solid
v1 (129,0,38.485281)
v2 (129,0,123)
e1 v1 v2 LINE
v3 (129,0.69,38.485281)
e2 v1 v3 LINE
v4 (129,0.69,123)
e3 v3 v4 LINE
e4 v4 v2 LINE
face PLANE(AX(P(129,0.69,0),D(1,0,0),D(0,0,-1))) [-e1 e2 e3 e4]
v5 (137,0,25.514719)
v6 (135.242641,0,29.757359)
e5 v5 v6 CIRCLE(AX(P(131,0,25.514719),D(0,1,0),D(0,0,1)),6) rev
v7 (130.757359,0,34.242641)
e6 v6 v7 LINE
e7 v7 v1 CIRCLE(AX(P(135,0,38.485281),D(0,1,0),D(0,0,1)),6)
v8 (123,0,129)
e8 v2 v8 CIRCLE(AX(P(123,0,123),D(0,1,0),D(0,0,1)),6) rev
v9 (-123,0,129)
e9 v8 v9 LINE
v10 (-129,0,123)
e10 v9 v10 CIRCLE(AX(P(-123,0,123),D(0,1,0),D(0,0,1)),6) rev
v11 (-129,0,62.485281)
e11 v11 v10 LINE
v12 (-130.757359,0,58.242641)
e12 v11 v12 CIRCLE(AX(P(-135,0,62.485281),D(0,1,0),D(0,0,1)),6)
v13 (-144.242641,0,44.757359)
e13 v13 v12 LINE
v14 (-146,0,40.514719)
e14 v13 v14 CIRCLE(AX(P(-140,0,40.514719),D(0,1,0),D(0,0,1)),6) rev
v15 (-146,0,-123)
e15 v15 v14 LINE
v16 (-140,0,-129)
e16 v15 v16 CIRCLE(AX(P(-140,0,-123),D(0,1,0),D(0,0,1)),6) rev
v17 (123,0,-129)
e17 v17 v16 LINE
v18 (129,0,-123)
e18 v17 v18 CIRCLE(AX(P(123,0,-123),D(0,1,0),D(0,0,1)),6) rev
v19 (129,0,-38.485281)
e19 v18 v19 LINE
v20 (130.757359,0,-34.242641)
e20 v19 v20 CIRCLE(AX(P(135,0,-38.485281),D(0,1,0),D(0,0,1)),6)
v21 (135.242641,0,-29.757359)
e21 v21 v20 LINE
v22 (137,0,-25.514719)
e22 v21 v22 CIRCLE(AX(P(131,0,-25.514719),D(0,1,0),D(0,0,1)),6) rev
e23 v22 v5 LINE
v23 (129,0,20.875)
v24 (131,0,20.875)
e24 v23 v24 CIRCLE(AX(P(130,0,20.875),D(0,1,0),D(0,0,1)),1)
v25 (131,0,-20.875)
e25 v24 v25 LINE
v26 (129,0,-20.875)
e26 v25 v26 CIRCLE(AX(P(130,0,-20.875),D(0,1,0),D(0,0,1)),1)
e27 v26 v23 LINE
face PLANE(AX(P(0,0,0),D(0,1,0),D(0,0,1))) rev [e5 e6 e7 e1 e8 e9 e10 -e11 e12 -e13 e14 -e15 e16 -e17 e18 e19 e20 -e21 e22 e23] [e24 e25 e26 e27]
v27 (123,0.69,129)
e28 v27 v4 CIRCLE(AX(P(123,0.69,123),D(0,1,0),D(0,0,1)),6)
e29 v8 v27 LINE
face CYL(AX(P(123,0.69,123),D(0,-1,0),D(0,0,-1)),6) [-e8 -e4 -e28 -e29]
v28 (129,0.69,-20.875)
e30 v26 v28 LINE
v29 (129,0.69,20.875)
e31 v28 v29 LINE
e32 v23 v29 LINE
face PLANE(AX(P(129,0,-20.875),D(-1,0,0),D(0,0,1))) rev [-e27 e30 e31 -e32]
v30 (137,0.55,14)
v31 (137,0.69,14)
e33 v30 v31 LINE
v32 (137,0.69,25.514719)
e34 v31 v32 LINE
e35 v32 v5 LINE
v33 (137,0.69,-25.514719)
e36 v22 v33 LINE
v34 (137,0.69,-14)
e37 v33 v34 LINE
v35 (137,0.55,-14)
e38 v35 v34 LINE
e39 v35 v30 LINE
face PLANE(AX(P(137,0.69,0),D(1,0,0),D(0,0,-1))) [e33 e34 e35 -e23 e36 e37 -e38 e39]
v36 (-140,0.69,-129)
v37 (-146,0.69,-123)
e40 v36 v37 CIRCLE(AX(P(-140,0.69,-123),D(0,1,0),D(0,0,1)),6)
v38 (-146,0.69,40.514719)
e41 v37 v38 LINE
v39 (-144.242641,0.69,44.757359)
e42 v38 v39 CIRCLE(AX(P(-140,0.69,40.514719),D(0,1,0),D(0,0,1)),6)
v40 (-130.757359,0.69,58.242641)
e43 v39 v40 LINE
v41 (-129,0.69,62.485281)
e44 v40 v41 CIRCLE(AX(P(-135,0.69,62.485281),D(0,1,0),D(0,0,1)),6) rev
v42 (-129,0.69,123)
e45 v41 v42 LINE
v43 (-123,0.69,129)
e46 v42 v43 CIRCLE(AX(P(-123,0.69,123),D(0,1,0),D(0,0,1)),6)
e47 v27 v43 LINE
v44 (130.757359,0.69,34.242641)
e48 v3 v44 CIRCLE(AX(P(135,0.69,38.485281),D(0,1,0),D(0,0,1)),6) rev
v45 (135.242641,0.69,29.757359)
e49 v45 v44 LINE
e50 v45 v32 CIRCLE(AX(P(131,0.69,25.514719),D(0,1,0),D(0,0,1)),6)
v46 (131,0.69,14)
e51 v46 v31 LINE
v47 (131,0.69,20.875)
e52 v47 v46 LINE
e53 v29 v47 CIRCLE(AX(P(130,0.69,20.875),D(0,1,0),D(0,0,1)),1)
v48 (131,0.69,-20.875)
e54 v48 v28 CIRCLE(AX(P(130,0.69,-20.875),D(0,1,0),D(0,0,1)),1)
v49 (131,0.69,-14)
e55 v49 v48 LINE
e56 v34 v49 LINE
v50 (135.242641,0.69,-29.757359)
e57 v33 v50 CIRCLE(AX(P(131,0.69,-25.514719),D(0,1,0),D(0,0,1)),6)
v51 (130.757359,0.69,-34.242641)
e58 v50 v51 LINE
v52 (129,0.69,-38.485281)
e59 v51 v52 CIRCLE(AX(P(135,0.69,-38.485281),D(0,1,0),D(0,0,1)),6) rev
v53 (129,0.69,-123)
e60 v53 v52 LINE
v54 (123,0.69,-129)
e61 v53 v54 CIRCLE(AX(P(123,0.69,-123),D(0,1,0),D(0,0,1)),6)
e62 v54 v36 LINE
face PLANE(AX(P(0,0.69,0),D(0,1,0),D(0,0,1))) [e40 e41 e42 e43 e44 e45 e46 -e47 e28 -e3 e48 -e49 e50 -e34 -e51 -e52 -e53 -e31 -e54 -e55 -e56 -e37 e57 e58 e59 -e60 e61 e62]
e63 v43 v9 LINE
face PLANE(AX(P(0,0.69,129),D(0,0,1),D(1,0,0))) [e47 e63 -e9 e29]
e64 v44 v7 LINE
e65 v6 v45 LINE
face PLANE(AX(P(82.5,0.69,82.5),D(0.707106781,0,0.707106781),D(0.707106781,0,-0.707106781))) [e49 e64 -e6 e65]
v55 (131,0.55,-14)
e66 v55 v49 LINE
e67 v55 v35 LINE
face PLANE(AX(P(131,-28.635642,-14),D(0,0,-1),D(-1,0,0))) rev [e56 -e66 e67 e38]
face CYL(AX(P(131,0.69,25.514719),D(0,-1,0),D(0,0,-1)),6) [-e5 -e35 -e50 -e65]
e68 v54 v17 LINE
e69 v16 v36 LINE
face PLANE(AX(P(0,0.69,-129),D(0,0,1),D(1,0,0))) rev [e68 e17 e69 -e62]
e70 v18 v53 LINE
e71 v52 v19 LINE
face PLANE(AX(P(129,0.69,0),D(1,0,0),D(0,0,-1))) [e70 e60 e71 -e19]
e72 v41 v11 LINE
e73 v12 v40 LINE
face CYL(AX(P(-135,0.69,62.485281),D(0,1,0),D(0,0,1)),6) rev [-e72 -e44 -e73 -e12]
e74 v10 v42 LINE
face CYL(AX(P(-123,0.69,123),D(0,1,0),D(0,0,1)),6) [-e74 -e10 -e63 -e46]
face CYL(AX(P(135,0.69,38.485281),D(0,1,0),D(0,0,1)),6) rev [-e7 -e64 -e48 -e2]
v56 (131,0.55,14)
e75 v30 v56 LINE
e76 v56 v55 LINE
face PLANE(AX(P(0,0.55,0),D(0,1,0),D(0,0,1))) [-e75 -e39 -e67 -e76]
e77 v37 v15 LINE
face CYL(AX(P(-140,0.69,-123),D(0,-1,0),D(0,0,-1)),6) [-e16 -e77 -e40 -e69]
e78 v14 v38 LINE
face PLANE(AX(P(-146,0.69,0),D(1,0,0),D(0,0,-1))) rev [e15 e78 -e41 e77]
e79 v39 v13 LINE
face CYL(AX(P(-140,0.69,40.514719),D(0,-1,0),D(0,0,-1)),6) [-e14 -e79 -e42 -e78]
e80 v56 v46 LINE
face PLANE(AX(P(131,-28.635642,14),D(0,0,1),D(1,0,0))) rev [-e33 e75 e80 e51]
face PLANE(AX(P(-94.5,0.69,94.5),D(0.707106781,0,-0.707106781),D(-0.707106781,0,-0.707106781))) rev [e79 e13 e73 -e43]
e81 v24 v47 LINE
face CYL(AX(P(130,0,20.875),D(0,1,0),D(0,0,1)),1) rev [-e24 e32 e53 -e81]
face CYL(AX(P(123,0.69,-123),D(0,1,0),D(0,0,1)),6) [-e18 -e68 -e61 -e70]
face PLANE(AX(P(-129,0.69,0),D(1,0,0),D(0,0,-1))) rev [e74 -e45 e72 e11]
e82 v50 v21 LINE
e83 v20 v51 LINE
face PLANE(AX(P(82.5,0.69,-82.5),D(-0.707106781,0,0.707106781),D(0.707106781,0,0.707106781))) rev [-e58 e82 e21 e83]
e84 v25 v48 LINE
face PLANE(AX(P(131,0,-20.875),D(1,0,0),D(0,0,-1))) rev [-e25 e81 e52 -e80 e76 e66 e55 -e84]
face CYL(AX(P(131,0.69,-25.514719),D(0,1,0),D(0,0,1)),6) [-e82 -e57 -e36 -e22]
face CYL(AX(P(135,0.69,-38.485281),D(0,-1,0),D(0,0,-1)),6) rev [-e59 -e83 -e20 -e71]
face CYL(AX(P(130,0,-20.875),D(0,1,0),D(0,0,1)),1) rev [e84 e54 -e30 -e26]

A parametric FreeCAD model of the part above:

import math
import FreeCAD as App
import Part
import Sketcher


def edges_at(feature, points):
    """Names of the edges that pass closest to the given points."""
    edges = feature.Shape.Edges
    near = lambda p: min(range(len(edges)), key=lambda i: edges[i].distToShape(Part.Vertex(*p))[0])
    return sorted({f"Edge{near(p) + 1}" for p in points})


def add_polygon(sketch, points):
    """Adds a closed chain of lines whose ends are joined by coincident constraints."""
    first, n = sketch.GeometryCount, len(points)
    for a, b in zip(points, points[1:] + points[:1]):
        sketch.addGeometry(Part.LineSegment(App.Vector(*a, 0), App.Vector(*b, 0)), False)
    for i in range(n):
        sketch.addConstraint(Sketcher.Constraint("Coincident", first + i, 2, first + (i + 1) % n, 1))

doc = App.newDocument("Part")
params = doc.addObject("Spreadsheet::Sheet", "Params")
for row, (alias, value) in enumerate([
    ("sketch1_width", "258 mm"),
    ("sketch1_width2", "275 mm"),
    ("sketch1_height", "172 mm"),
    ("sketch1_height2", "69 mm"),
    ("sketch1_height3", "93 mm"),
    ("pad1_length", "0.69 mm"),
    ("sketch2_radius", "1 mm"),
    ("sketch2_height", "41.75 mm"),
    ("sketch3_width", "6 mm"),
    ("sketch3_height", "28 mm"),
    ("pocket2_length", "0.14 mm"),
    ("fillet_radius", "6 mm"),
], start=1):
    params.set(f"A{row}", alias)
    params.set(f"B{row}", "=" + value)
    params.setAlias(f"B{row}", alias)

body = doc.addObject("PartDesign::Body", "Body")

sketch1 = body.newObject("Sketcher::SketchObject", "Sketch")
sketch1.AttachmentSupport = (doc.getObject("XZ_Plane"), [""])
sketch1.MapMode = "FlatFace"
add_polygon(sketch1, [(-146, -129), (-146, 43), (-129, 60), (-129, 129), (129, 129), (129, 36), (137, 28), (137, -28), (129, -36), (129, -129)])
sketch1.addConstraint([
    Sketcher.Constraint("Vertical", 0),
    Sketcher.Constraint("Vertical", 2),
    Sketcher.Constraint("Horizontal", 3),
    Sketcher.Constraint("Vertical", 4),
    Sketcher.Constraint("Vertical", 6),
    Sketcher.Constraint("Vertical", 8),
    Sketcher.Constraint("Horizontal", 9),
    Sketcher.Constraint("Symmetric", 2, 2, 8, 2, -1, 1),
    Sketcher.Constraint("Symmetric", 4, 2, 7, 2, -1),
    Sketcher.Constraint("Perpendicular", 1, 5),
    Sketcher.Constraint("Perpendicular", 5, 7),
    Sketcher.Constraint("Equal", 5, 7),
    Sketcher.Constraint("DistanceX", 3, 1, 3, 2, 258.0),
    Sketcher.Constraint("DistanceX", 9, 2, 9, 1, 275.0),
    Sketcher.Constraint("DistanceY", 0, 1, 0, 2, 172.0),
    Sketcher.Constraint("DistanceY", 2, 1, 2, 2, 69.0),
    Sketcher.Constraint("DistanceY", 4, 2, 4, 1, 93.0),
    Sketcher.Constraint("DistanceY", 6, 2, 6, 1, 56.0),
])
sketch1.setExpression("Constraints[22]", "Params.sketch1_width")
sketch1.setExpression("Constraints[23]", "Params.sketch1_width2")
sketch1.setExpression("Constraints[24]", "Params.sketch1_height")
sketch1.setExpression("Constraints[25]", "Params.sketch1_height2")
sketch1.setExpression("Constraints[26]", "Params.sketch1_height3")
pad1 = body.newObject("PartDesign::Pad", "Pad")
pad1.Profile = sketch1
pad1.setExpression("Length", "Params.pad1_length")
pad1.Reversed = True

sketch2 = body.newObject("Sketcher::SketchObject", "Sketch001")
sketch2.AttachmentSupport = (doc.getObject("XZ_Plane"), [""])
sketch2.MapMode = "FlatFace"
sketch2.AttachmentOffset = App.Placement(App.Vector(0, 0, -0.69), App.Rotation())
sketch2.addGeometry([
    Part.LineSegment(App.Vector(131, 20.9, 0), App.Vector(131, -20.9, 0)),
    Part.ArcOfCircle(Part.Circle(App.Vector(130, -20.9, 0), App.Vector(0, 0, 1), 1), math.radians(180), math.radians(360)),
    Part.LineSegment(App.Vector(129, -20.9, 0), App.Vector(129, 20.9, 0)),
    Part.ArcOfCircle(Part.Circle(App.Vector(130, 20.9, 0), App.Vector(0, 0, 1), 1), math.radians(0), math.radians(180)),
], False)
sketch2.addConstraint([
    Sketcher.Constraint("Tangent", 0, 2, 1, 2),
    Sketcher.Constraint("Tangent", 1, 1, 2, 1),
    Sketcher.Constraint("Tangent", 2, 2, 3, 2),
    Sketcher.Constraint("Tangent", 3, 1, 0, 1),
    Sketcher.Constraint("Vertical", 0),
    Sketcher.Constraint("Vertical", 2),
    Sketcher.Constraint("Radius", 1, 1.0),
    Sketcher.Constraint("DistanceX", -1, 1, 1, 3, 130.0),
    Sketcher.Constraint("DistanceY", 0, 2, 0, 1, 41.75),
    Sketcher.Constraint("DistanceY", 1, 3, -1, 1, 20.875),
])
sketch2.setExpression("Constraints[6]", "Params.sketch2_radius")
sketch2.setExpression("Constraints[8]", "Params.sketch2_height")
pocket1 = body.newObject("PartDesign::Pocket", "Pocket")
pocket1.Profile = sketch2
pocket1.Type = "ThroughAll"
pocket1.Reversed = True

sketch3 = body.newObject("Sketcher::SketchObject", "Sketch002")
sketch3.AttachmentSupport = (doc.getObject("XZ_Plane"), [""])
sketch3.MapMode = "FlatFace"
sketch3.AttachmentOffset = App.Placement(App.Vector(0, 0, -0.69), App.Rotation())
add_polygon(sketch3, [(131, -14), (131, 14), (137, 14), (137, -14)])
sketch3.addConstraint([
    Sketcher.Constraint("Vertical", 0),
    Sketcher.Constraint("Horizontal", 1),
    Sketcher.Constraint("Vertical", 2),
    Sketcher.Constraint("Horizontal", 3),
    Sketcher.Constraint("DistanceX", 1, 1, 1, 2, 6.0),
    Sketcher.Constraint("DistanceY", 0, 1, 0, 2, 28.0),
    Sketcher.Constraint("DistanceX", -1, 1, 0, 2, 131.0),
    Sketcher.Constraint("DistanceY", -1, 1, 0, 2, 14.0),
])
sketch3.setExpression("Constraints[8]", "Params.sketch3_width")
sketch3.setExpression("Constraints[9]", "Params.sketch3_height")
pocket2 = body.newObject("PartDesign::Pocket", "Pocket001")
pocket2.Profile = sketch3
pocket2.setExpression("Length", "Params.pocket2_length")
pocket2.Reversed = True
doc.recompute()

fillet = body.newObject("PartDesign::Fillet", "Fillet")
fillet.Base = (pocket2, edges_at(pocket2, [
    (129, 0.345, 36),
    (129, 0.345, 129),
    (-129, 0.345, 129),
    (-129, 0.345, 60),
    (-146, 0.345, 43),
    (-146, 0.345, -129),
    (129, 0.345, -129),
    (129, 0.345, -36),
    (137, 0.345, -28),
    (137, 0.345, 28),
]))
fillet.setExpression("Radius", "Params.fillet_radius")

doc.recompute()
